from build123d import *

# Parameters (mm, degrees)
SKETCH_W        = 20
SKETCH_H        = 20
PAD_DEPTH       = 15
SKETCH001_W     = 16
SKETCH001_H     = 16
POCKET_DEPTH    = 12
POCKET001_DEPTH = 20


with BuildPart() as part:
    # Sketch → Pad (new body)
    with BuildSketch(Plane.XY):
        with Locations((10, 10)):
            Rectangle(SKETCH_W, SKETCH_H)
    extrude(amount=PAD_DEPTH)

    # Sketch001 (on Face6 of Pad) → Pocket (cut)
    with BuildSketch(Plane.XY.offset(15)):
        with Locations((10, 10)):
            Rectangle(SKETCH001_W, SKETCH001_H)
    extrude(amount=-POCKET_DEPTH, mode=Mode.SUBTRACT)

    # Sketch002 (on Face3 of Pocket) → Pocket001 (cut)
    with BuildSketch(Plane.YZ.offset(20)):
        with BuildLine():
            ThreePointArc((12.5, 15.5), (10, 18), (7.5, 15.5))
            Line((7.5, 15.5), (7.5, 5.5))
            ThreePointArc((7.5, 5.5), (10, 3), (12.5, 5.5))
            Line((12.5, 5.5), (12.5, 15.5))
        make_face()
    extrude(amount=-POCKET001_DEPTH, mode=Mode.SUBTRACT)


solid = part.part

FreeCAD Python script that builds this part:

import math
import FreeCAD as App
import Part
import Sketcher


def add_polygon(sketch, points):
    """Adds a closed chain of lines whose ends are joined by coincident constraints."""
    first, n = sketch.GeometryCount, len(points)
    for a, b in zip(points, points[1:] + points[:1]):
        sketch.addGeometry(Part.LineSegment(App.Vector(*a, 0), App.Vector(*b, 0)), False)
    for i in range(n):
        sketch.addConstraint(Sketcher.Constraint("Coincident", first + i, 2, first + (i + 1) % n, 1))

doc = App.newDocument("Part")
body = doc.addObject("PartDesign::Body", "Body")

# Sketch on XY plane
sketch1 = body.newObject("Sketcher::SketchObject", "Sketch")
sketch1.AttachmentSupport = (doc.getObject("XY_Plane"), [""])
sketch1.MapMode = "FlatFace"
add_polygon(sketch1, [(0, 20), (0, 0), (20, 0), (20, 20)])  # lines 0-3
sketch1.addConstraint([
    Sketcher.Constraint("Vertical", 0),
    Sketcher.Constraint("Horizontal", 1),
    Sketcher.Constraint("Vertical", 2),
    Sketcher.Constraint("Horizontal", 3),
    Sketcher.Constraint("Coincident", 0, 2, -1, 1),
    Sketcher.Constraint("Equal", 3, 0),
    Sketcher.Constraint("DistanceX", 1, 1, 1, 2, 20.0),
])
pad1 = body.newObject("PartDesign::Pad", "Pad")
pad1.Profile = sketch1
pad1.Length = 15

# Sketch on XY plane
sketch2 = body.newObject("Sketcher::SketchObject", "Sketch001")
sketch2.AttachmentSupport = (doc.getObject("XY_Plane"), [""])
sketch2.MapMode = "FlatFace"
sketch2.AttachmentOffset = App.Placement(App.Vector(0, 0, 15), App.Rotation())
add_polygon(sketch2, [(2, 18), (2, 2), (18, 2), (18, 18)])  # lines 0-3
sketch2.addConstraint([
    Sketcher.Constraint("Vertical", 0),
    Sketcher.Constraint("Horizontal", 1),
    Sketcher.Constraint("Vertical", 2),
    Sketcher.Constraint("Horizontal", 3),
    Sketcher.Constraint("Equal", 3, 0),
    Sketcher.Constraint("DistanceX", 1, 1, 1, 2, 16.0),
    Sketcher.Constraint("DistanceX", -1, 1, 0, 2, 2.0),
    Sketcher.Constraint("DistanceY", -1, 1, 0, 2, 2.0),
])
pocket1 = body.newObject("PartDesign::Pocket", "Pocket")
pocket1.Profile = sketch2
pocket1.Length = 12

# Sketch on YZ plane
sketch3 = body.newObject("Sketcher::SketchObject", "Sketch002")
sketch3.AttachmentSupport = (doc.getObject("YZ_Plane"), [""])
sketch3.MapMode = "FlatFace"
sketch3.AttachmentOffset = App.Placement(App.Vector(0, 0, 20), App.Rotation())
sketch3.addGeometry([
    Part.ArcOfCircle(Part.Circle(App.Vector(10, 15.5, 0), App.Vector(0, 0, 1), 2.5), math.radians(0), math.radians(180)),
    Part.LineSegment(App.Vector(7.5, 15.5, 0), App.Vector(7.5, 5.5, 0)),
    Part.ArcOfCircle(Part.Circle(App.Vector(10, 5.5, 0), App.Vector(0, 0, 1), 2.5), math.radians(180), math.radians(360)),
    Part.LineSegment(App.Vector(12.5, 5.5, 0), App.Vector(12.5, 15.5, 0)),
], False)
sketch3.addConstraint([
    Sketcher.Constraint("Tangent", 0, 2, 1, 1),
    Sketcher.Constraint("Tangent", 1, 2, 2, 1),
    Sketcher.Constraint("Tangent", 2, 2, 3, 1),
    Sketcher.Constraint("Tangent", 3, 2, 0, 1),
    Sketcher.Constraint("Vertical", 1),
    Sketcher.Constraint("Vertical", 3),
    Sketcher.Constraint("Radius", 0, 2.5),
    Sketcher.Constraint("DistanceY", 1, 2, 1, 1, 10.0),
    Sketcher.Constraint("DistanceX", -1, 1, 0, 3, 10.0),
    Sketcher.Constraint("DistanceY", -1, 1, 0, 3, 15.5),
])
pocket2 = body.newObject("PartDesign::Pocket", "Pocket001")
pocket2.Profile = sketch3
pocket2.Length = 20

doc.recompute()
